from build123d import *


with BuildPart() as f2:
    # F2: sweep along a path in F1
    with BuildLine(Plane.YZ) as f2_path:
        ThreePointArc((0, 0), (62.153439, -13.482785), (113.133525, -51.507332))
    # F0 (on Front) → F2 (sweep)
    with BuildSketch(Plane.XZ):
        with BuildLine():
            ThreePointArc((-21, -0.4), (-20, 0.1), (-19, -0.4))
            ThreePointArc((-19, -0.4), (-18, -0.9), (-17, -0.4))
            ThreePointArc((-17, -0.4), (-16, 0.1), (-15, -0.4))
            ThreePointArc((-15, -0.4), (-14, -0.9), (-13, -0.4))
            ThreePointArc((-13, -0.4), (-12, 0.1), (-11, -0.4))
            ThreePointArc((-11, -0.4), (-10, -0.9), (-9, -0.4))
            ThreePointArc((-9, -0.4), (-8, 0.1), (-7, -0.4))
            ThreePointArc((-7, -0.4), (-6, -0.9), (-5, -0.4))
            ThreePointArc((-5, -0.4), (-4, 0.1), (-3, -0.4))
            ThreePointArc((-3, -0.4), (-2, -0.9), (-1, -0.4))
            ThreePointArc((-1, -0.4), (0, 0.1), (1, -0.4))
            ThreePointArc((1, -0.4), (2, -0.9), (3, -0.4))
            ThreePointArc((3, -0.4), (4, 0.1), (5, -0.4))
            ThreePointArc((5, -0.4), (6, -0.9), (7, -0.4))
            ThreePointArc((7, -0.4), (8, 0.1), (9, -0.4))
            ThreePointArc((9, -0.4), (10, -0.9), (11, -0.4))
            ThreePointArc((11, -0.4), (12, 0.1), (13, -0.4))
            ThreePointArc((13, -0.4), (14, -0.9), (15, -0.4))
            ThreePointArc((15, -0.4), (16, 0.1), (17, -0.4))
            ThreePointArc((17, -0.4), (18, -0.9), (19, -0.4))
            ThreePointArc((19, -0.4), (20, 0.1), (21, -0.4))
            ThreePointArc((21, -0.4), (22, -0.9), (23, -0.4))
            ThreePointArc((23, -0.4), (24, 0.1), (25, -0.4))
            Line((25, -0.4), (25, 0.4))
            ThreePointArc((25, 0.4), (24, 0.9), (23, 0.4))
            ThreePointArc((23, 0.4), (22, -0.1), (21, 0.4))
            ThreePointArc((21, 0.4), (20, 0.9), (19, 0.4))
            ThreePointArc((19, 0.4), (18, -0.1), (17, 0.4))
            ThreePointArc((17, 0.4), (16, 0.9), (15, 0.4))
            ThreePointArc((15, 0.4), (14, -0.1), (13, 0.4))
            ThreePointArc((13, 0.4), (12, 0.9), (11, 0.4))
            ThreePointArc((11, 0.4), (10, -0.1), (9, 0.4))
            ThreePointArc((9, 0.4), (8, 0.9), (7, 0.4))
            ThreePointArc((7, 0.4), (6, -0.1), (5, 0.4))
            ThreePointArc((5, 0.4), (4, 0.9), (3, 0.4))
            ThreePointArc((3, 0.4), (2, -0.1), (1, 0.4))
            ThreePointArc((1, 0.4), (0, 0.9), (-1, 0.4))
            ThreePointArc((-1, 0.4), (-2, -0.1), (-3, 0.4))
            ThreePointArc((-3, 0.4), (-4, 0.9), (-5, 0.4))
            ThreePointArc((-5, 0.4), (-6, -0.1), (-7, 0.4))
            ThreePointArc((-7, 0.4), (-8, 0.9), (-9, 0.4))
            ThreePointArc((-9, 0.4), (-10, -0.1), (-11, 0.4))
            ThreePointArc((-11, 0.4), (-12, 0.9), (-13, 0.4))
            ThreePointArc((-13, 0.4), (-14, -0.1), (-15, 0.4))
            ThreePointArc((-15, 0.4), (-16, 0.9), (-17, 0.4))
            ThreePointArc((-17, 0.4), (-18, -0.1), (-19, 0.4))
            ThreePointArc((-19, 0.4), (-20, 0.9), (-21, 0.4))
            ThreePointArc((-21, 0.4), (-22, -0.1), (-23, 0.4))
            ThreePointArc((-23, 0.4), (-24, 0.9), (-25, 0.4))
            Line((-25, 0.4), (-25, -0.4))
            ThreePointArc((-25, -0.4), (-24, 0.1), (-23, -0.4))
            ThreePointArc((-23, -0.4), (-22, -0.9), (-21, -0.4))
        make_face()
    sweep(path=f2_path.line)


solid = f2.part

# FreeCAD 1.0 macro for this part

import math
import FreeCAD as App
import Part
import Sketcher

V = App.Vector

doc = App.newDocument("Part")
params = doc.addObject("Spreadsheet::Sheet", "Params")
for row, (alias, value) in enumerate([
    ("sketch1_radius", "1.25 mm"),
    ("sketch1_height", "0.8 mm"),
], start=1):
    params.set(f"A{row}", alias)
    params.set(f"B{row}", "=" + value)
    params.setAlias(f"B{row}", alias)

body = doc.addObject("PartDesign::Body", "Body")

sketch1 = body.newObject("Sketcher::SketchObject", "Sketch")
sketch1.AttachmentSupport = (doc.getObject("XZ_Plane"), [""])
sketch1.MapMode = "FlatFace"
sketch1.addGeometry(Part.ArcOfCircle(Part.Circle(V(-20, -1.1, 0), V(0, 0, 1), 1.2), math.radians(37), math.radians(143)), False)
sketch1.addGeometry(Part.ArcOfCircle(Part.Circle(V(-18, 0.3, 0), V(0, 0, 1), 1.2), math.radians(-143), math.radians(-37)), False)
sketch1.addGeometry(Part.ArcOfCircle(Part.Circle(V(-16, -1.1, 0), V(0, 0, 1), 1.2), math.radians(37), math.radians(143)), False)
sketch1.addGeometry(Part.ArcOfCircle(Part.Circle(V(-14, 0.3, 0), V(0, 0, 1), 1.2), math.radians(-143), math.radians(-37)), False)
sketch1.addGeometry(Part.ArcOfCircle(Part.Circle(V(-12, -1.1, 0), V(0, 0, 1), 1.2), math.radians(37), math.radians(143)), False)
sketch1.addGeometry(Part.ArcOfCircle(Part.Circle(V(-10, 0.3, 0), V(0, 0, 1), 1.2), math.radians(-143), math.radians(-37)), False)
sketch1.addGeometry(Part.ArcOfCircle(Part.Circle(V(-8, -1.1, 0), V(0, 0, 1), 1.2), math.radians(37), math.radians(143)), False)
sketch1.addGeometry(Part.ArcOfCircle(Part.Circle(V(-6, 0.3, 0), V(0, 0, 1), 1.2), math.radians(-143), math.radians(-37)), False)
sketch1.addGeometry(Part.ArcOfCircle(Part.Circle(V(-4, -1.1, 0), V(0, 0, 1), 1.2), math.radians(37), math.radians(143)), False)
sketch1.addGeometry(Part.ArcOfCircle(Part.Circle(V(-2, 0.3, 0), V(0, 0, 1), 1.2), math.radians(-143), math.radians(-37)), False)
sketch1.addGeometry(Part.ArcOfCircle(Part.Circle(V(0, -1.1, 0), V(0, 0, 1), 1.2), math.radians(37), math.radians(143)), False)
sketch1.addGeometry(Part.ArcOfCircle(Part.Circle(V(2, 0.3, 0), V(0, 0, 1), 1.2), math.radians(-143), math.radians(-37)), False)
sketch1.addGeometry(Part.ArcOfCircle(Part.Circle(V(4, -1.1, 0), V(0, 0, 1), 1.2), math.radians(37), math.radians(143)), False)
sketch1.addGeometry(Part.ArcOfCircle(Part.Circle(V(6, 0.3, 0), V(0, 0, 1), 1.2), math.radians(-143), math.radians(-37)), False)
sketch1.addGeometry(Part.ArcOfCircle(Part.Circle(V(8, -1.1, 0), V(0, 0, 1), 1.2), math.radians(37), math.radians(143)), False)
sketch1.addGeometry(Part.ArcOfCircle(Part.Circle(V(10, 0.3, 0), V(0, 0, 1), 1.2), math.radians(-143), math.radians(-37)), False)
sketch1.addGeometry(Part.ArcOfCircle(Part.Circle(V(12, -1.1, 0), V(0, 0, 1), 1.2), math.radians(37), math.radians(143)), False)
sketch1.addGeometry(Part.ArcOfCircle(Part.Circle(V(14, 0.3, 0), V(0, 0, 1), 1.2), math.radians(-143), math.radians(-37)), False)
sketch1.addGeometry(Part.ArcOfCircle(Part.Circle(V(16, -1.1, 0), V(0, 0, 1), 1.2), math.radians(37), math.radians(143)), False)
sketch1.addGeometry(Part.ArcOfCircle(Part.Circle(V(18, 0.3, 0), V(0, 0, 1), 1.2), math.radians(-143), math.radians(-37)), False)
sketch1.addGeometry(Part.ArcOfCircle(Part.Circle(V(20, -1.1, 0), V(0, 0, 1), 1.2), math.radians(37), math.radians(143)), False)
sketch1.addGeometry(Part.ArcOfCircle(Part.Circle(V(22, 0.3, 0), V(0, 0, 1), 1.2), math.radians(-143), math.radians(-37)), False)
sketch1.addGeometry(Part.ArcOfCircle(Part.Circle(V(24, -1.1, 0), V(0, 0, 1), 1.2), math.radians(37), math.radians(143)), False)
sketch1.addGeometry(Part.LineSegment(V(25, -0.4, 0), V(25, 0.4, 0)), False)
sketch1.addGeometry(Part.ArcOfCircle(Part.Circle(V(24, -0.3, 0), V(0, 0, 1), 1.2), math.radians(37), math.radians(143)), False)
sketch1.addGeometry(Part.ArcOfCircle(Part.Circle(V(22, 1.1, 0), V(0, 0, 1), 1.2), math.radians(-143), math.radians(-37)), False)
sketch1.addGeometry(Part.ArcOfCircle(Part.Circle(V(20, -0.3, 0), V(0, 0, 1), 1.2), math.radians(37), math.radians(143)), False)
sketch1.addGeometry(Part.ArcOfCircle(Part.Circle(V(18, 1.1, 0), V(0, 0, 1), 1.2), math.radians(-143), math.radians(-37)), False)
sketch1.addGeometry(Part.ArcOfCircle(Part.Circle(V(16, -0.3, 0), V(0, 0, 1), 1.2), math.radians(37), math.radians(143)), False)
sketch1.addGeometry(Part.ArcOfCircle(Part.Circle(V(14, 1.1, 0), V(0, 0, 1), 1.2), math.radians(-143), math.radians(-37)), False)
sketch1.addGeometry(Part.ArcOfCircle(Part.Circle(V(12, -0.3, 0), V(0, 0, 1), 1.2), math.radians(37), math.radians(143)), False)
sketch1.addGeometry(Part.ArcOfCircle(Part.Circle(V(10, 1.1, 0), V(0, 0, 1), 1.2), math.radians(-143), math.radians(-37)), False)
sketch1.addGeometry(Part.ArcOfCircle(Part.Circle(V(8, -0.3, 0), V(0, 0, 1), 1.2), math.radians(37), math.radians(143)), False)
sketch1.addGeometry(Part.ArcOfCircle(Part.Circle(V(6, 1.1, 0), V(0, 0, 1), 1.2), math.radians(-143), math.radians(-37)), False)
sketch1.addGeometry(Part.ArcOfCircle(Part.Circle(V(4, -0.3, 0), V(0, 0, 1), 1.2), math.radians(37), math.radians(143)), False)
sketch1.addGeometry(Part.ArcOfCircle(Part.Circle(V(2, 1.1, 0), V(0, 0, 1), 1.2), math.radians(-143), math.radians(-37)), False)
sketch1.addGeometry(Part.ArcOfCircle(Part.Circle(V(0, -0.3, 0), V(0, 0, 1), 1.2), math.radians(37), math.radians(143)), False)
sketch1.addGeometry(Part.ArcOfCircle(Part.Circle(V(-2, 1.1, 0), V(0, 0, 1), 1.2), math.radians(-143), math.radians(-37)), False)
sketch1.addGeometry(Part.ArcOfCircle(Part.Circle(V(-4, -0.3, 0), V(0, 0, 1), 1.2), math.radians(37), math.radians(143)), False)
sketch1.addGeometry(Part.ArcOfCircle(Part.Circle(V(-6, 1.1, 0), V(0, 0, 1), 1.2), math.radians(-143), math.radians(-37)), False)
sketch1.addGeometry(Part.ArcOfCircle(Part.Circle(V(-8, -0.3, 0), V(0, 0, 1), 1.2), math.radians(37), math.radians(143)), False)
sketch1.addGeometry(Part.ArcOfCircle(Part.Circle(V(-10, 1.1, 0), V(0, 0, 1), 1.2), math.radians(-143), math.radians(-37)), False)
sketch1.addGeometry(Part.ArcOfCircle(Part.Circle(V(-12, -0.3, 0), V(0, 0, 1), 1.2), math.radians(37), math.radians(143)), False)
sketch1.addGeometry(Part.ArcOfCircle(Part.Circle(V(-14, 1.1, 0), V(0, 0, 1), 1.2), math.radians(-143), math.radians(-37)), False)
sketch1.addGeometry(Part.ArcOfCircle(Part.Circle(V(-16, -0.3, 0), V(0, 0, 1), 1.2), math.radians(37), math.radians(143)), False)
sketch1.addGeometry(Part.ArcOfCircle(Part.Circle(V(-18, 1.1, 0), V(0, 0, 1), 1.2), math.radians(-143), math.radians(-37)), False)
sketch1.addGeometry(Part.ArcOfCircle(Part.Circle(V(-20, -0.3, 0), V(0, 0, 1), 1.2), math.radians(37), math.radians(143)), False)
sketch1.addGeometry(Part.ArcOfCircle(Part.Circle(V(-22, 1.1, 0), V(0, 0, 1), 1.2), math.radians(-143), math.radians(-37)), False)
sketch1.addGeometry(Part.ArcOfCircle(Part.Circle(V(-24, -0.3, 0), V(0, 0, 1), 1.2), math.radians(37), math.radians(143)), False)
sketch1.addGeometry(Part.LineSegment(V(-25, 0.4, 0), V(-25, -0.4, 0)), False)
sketch1.addGeometry(Part.ArcOfCircle(Part.Circle(V(-24, -1.1, 0), V(0, 0, 1), 1.2), math.radians(37), math.radians(143)), False)
sketch1.addGeometry(Part.ArcOfCircle(Part.Circle(V(-22, 0.3, 0), V(0, 0, 1), 1.2), math.radians(-143), math.radians(-37)), False)
sketch1.addConstraint(Sketcher.Constraint("Tangent", 0, 1, 1, 1))
sketch1.addConstraint(Sketcher.Constraint("Tangent", 1, 2, 2, 2))
sketch1.addConstraint(Sketcher.Constraint("Tangent", 2, 1, 3, 1))
sketch1.addConstraint(Sketcher.Constraint("Tangent", 3, 2, 4, 2))
sketch1.addConstraint(Sketcher.Constraint("Tangent", 4, 1, 5, 1))
sketch1.addConstraint(Sketcher.Constraint("Tangent", 5, 2, 6, 2))
sketch1.addConstraint(Sketcher.Constraint("Tangent", 6, 1, 7, 1))
sketch1.addConstraint(Sketcher.Constraint("Tangent", 7, 2, 8, 2))
sketch1.addConstraint(Sketcher.Constraint("Tangent", 8, 1, 9, 1))
sketch1.addConstraint(Sketcher.Constraint("Tangent", 9, 2, 10, 2))
sketch1.addConstraint(Sketcher.Constraint("Tangent", 10, 1, 11, 1))
sketch1.addConstraint(Sketcher.Constraint("Tangent", 11, 2, 12, 2))
sketch1.addConstraint(Sketcher.Constraint("Tangent", 12, 1, 13, 1))
sketch1.addConstraint(Sketcher.Constraint("Tangent", 13, 2, 14, 2))
sketch1.addConstraint(Sketcher.Constraint("Tangent", 14, 1, 15, 1))
sketch1.addConstraint(Sketcher.Constraint("Tangent", 15, 2, 16, 2))
sketch1.addConstraint(Sketcher.Constraint("Tangent", 16, 1, 17, 1))
sketch1.addConstraint(Sketcher.Constraint("Tangent", 17, 2, 18, 2))
sketch1.addConstraint(Sketcher.Constraint("Tangent", 18, 1, 19, 1))
sketch1.addConstraint(Sketcher.Constraint("Tangent", 19, 2, 20, 2))
sketch1.addConstraint(Sketcher.Constraint("Tangent", 20, 1, 21, 1))
sketch1.addConstraint(Sketcher.Constraint("Tangent", 21, 2, 22, 2))
sketch1.addConstraint(Sketcher.Constraint("Coincident", 22, 1, 23, 1))
sketch1.addConstraint(Sketcher.Constraint("Coincident", 23, 2, 24, 1))
sketch1.addConstraint(Sketcher.Constraint("Tangent", 24, 2, 25, 2))
sketch1.addConstraint(Sketcher.Constraint("Tangent", 25, 1, 26, 1))
sketch1.addConstraint(Sketcher.Constraint("Tangent", 26, 2, 27, 2))
sketch1.addConstraint(Sketcher.Constraint("Tangent", 27, 1, 28, 1))
sketch1.addConstraint(Sketcher.Constraint("Tangent", 28, 2, 29, 2))
sketch1.addConstraint(Sketcher.Constraint("Tangent", 29, 1, 30, 1))
sketch1.addConstraint(Sketcher.Constraint("Tangent", 30, 2, 31, 2))
sketch1.addConstraint(Sketcher.Constraint("Tangent", 31, 1, 32, 1))
sketch1.addConstraint(Sketcher.Constraint("Tangent", 32, 2, 33, 2))
sketch1.addConstraint(Sketcher.Constraint("Tangent", 33, 1, 34, 1))
sketch1.addConstraint(Sketcher.Constraint("Tangent", 34, 2, 35, 2))
sketch1.addConstraint(Sketcher.Constraint("Tangent", 35, 1, 36, 1))
sketch1.addConstraint(Sketcher.Constraint("Tangent", 36, 2, 37, 2))
sketch1.addConstraint(Sketcher.Constraint("Tangent", 37, 1, 38, 1))
sketch1.addConstraint(Sketcher.Constraint("Tangent", 38, 2, 39, 2))
sketch1.addConstraint(Sketcher.Constraint("Tangent", 39, 1, 40, 1))
sketch1.addConstraint(Sketcher.Constraint("Tangent", 40, 2, 41, 2))
sketch1.addConstraint(Sketcher.Constraint("Tangent", 41, 1, 42, 1))
sketch1.addConstraint(Sketcher.Constraint("Tangent", 42, 2, 43, 2))
sketch1.addConstraint(Sketcher.Constraint("Tangent", 43, 1, 44, 1))
sketch1.addConstraint(Sketcher.Constraint("Tangent", 44, 2, 45, 2))
sketch1.addConstraint(Sketcher.Constraint("Tangent", 45, 1, 46, 1))
sketch1.addConstraint(Sketcher.Constraint("Tangent", 46, 2, 47, 2))
sketch1.addConstraint(Sketcher.Constraint("Tangent", 47, 1, 48, 1))
sketch1.addConstraint(Sketcher.Constraint("Coincident", 48, 2, 49, 1))
sketch1.addConstraint(Sketcher.Constraint("Coincident", 49, 2, 50, 2))
sketch1.addConstraint(Sketcher.Constraint("Tangent", 50, 1, 51, 1))
sketch1.addConstraint(Sketcher.Constraint("Tangent", 51, 2, 0, 2))
sketch1.addConstraint(Sketcher.Constraint("Vertical", 23))
sketch1.addConstraint(Sketcher.Constraint("Vertical", 49))
sketch1.addConstraint(Sketcher.Constraint("Equal", 0, 1))
sketch1.addConstraint(Sketcher.Constraint("Equal", 1, 2))
sketch1.addConstraint(Sketcher.Constraint("Equal", 2, 3))
sketch1.addConstraint(Sketcher.Constraint("Equal", 3, 4))
sketch1.addConstraint(Sketcher.Constraint("Equal", 4, 5))
sketch1.addConstraint(Sketcher.Constraint("Equal", 5, 6))
sketch1.addConstraint(Sketcher.Constraint("Equal", 6, 7))
sketch1.addConstraint(Sketcher.Constraint("Equal", 7, 8))
sketch1.addConstraint(Sketcher.Constraint("Equal", 8, 9))
sketch1.addConstraint(Sketcher.Constraint("Equal", 9, 10))
sketch1.addConstraint(Sketcher.Constraint("Equal", 10, 11))
sketch1.addConstraint(Sketcher.Constraint("Equal", 11, 12))
sketch1.addConstraint(Sketcher.Constraint("Equal", 12, 13))
sketch1.addConstraint(Sketcher.Constraint("Equal", 13, 14))
sketch1.addConstraint(Sketcher.Constraint("Equal", 14, 15))
sketch1.addConstraint(Sketcher.Constraint("Equal", 15, 16))
sketch1.addConstraint(Sketcher.Constraint("Equal", 16, 17))
sketch1.addConstraint(Sketcher.Constraint("Equal", 17, 18))
sketch1.addConstraint(Sketcher.Constraint("Equal", 18, 19))
sketch1.addConstraint(Sketcher.Constraint("Equal", 19, 20))
sketch1.addConstraint(Sketcher.Constraint("Equal", 20, 21))
sketch1.addConstraint(Sketcher.Constraint("Equal", 21, 22))
sketch1.addConstraint(Sketcher.Constraint("Equal", 22, 24))
sketch1.addConstraint(Sketcher.Constraint("Equal", 24, 25))
sketch1.addConstraint(Sketcher.Constraint("Equal", 25, 26))
sketch1.addConstraint(Sketcher.Constraint("Equal", 26, 27))
sketch1.addConstraint(Sketcher.Constraint("Equal", 27, 28))
sketch1.addConstraint(Sketcher.Constraint("Equal", 28, 29))
sketch1.addConstraint(Sketcher.Constraint("Equal", 29, 30))
sketch1.addConstraint(Sketcher.Constraint("Equal", 30, 31))
sketch1.addConstraint(Sketcher.Constraint("Equal", 31, 32))
sketch1.addConstraint(Sketcher.Constraint("Equal", 32, 33))
sketch1.addConstraint(Sketcher.Constraint("Equal", 33, 34))
sketch1.addConstraint(Sketcher.Constraint("Equal", 34, 35))
sketch1.addConstraint(Sketcher.Constraint("Equal", 35, 36))
sketch1.addConstraint(Sketcher.Constraint("Equal", 36, 37))
sketch1.addConstraint(Sketcher.Constraint("Equal", 37, 38))
sketch1.addConstraint(Sketcher.Constraint("Equal", 38, 39))
sketch1.addConstraint(Sketcher.Constraint("Equal", 39, 40))
sketch1.addConstraint(Sketcher.Constraint("Equal", 40, 41))
sketch1.addConstraint(Sketcher.Constraint("Equal", 41, 42))
sketch1.addConstraint(Sketcher.Constraint("Equal", 42, 43))
sketch1.addConstraint(Sketcher.Constraint("Equal", 43, 44))
sketch1.addConstraint(Sketcher.Constraint("Equal", 44, 45))
sketch1.addConstraint(Sketcher.Constraint("Equal", 45, 46))
sketch1.addConstraint(Sketcher.Constraint("Equal", 46, 47))
sketch1.addConstraint(Sketcher.Constraint("Equal", 47, 48))
sketch1.addConstraint(Sketcher.Constraint("Equal", 48, 50))
sketch1.addConstraint(Sketcher.Constraint("Equal", 50, 51))
sketch1.addConstraint(Sketcher.Constraint("Symmetric", 0, 1, 26, 2, -1, 1))
sketch1.addConstraint(Sketcher.Constraint("Symmetric", 1, 2, 27, 1, -1, 1))
sketch1.addConstraint(Sketcher.Constraint("Symmetric", 2, 1, 28, 2, -1, 1))
sketch1.addConstraint(Sketcher.Constraint("Symmetric", 3, 2, 29, 1, -1, 1))
sketch1.addConstraint(Sketcher.Constraint("Symmetric", 4, 1, 30, 2, -1, 1))
sketch1.addConstraint(Sketcher.Constraint("Symmetric", 5, 2, 31, 1, -1, 1))
sketch1.addConstraint(Sketcher.Constraint("Symmetric", 6, 1, 32, 2, -1, 1))
sketch1.addConstraint(Sketcher.Constraint("Symmetric", 7, 2, 33, 1, -1, 1))
sketch1.addConstraint(Sketcher.Constraint("Symmetric", 8, 1, 34, 2, -1, 1))
sketch1.addConstraint(Sketcher.Constraint("Symmetric", 9, 2, 35, 1, -1, 1))
sketch1.addConstraint(Sketcher.Constraint("Symmetric", 10, 1, 36, 2, -1, 1))
sketch1.addConstraint(Sketcher.Constraint("Symmetric", 11, 2, 37, 1, -1, 1))
sketch1.addConstraint(Sketcher.Constraint("Symmetric", 12, 1, 38, 2, -1, 1))
sketch1.addConstraint(Sketcher.Constraint("Symmetric", 13, 2, 39, 1, -1, 1))
sketch1.addConstraint(Sketcher.Constraint("Symmetric", 14, 1, 40, 2, -1, 1))
sketch1.addConstraint(Sketcher.Constraint("Symmetric", 15, 2, 41, 1, -1, 1))
sketch1.addConstraint(Sketcher.Constraint("Symmetric", 16, 1, 42, 2, -1, 1))
sketch1.addConstraint(Sketcher.Constraint("Symmetric", 17, 2, 43, 1, -1, 1))
sketch1.addConstraint(Sketcher.Constraint("Symmetric", 18, 1, 44, 2, -1, 1))
sketch1.addConstraint(Sketcher.Constraint("Symmetric", 19, 2, 45, 1, -1, 1))
sketch1.addConstraint(Sketcher.Constraint("Symmetric", 20, 1, 46, 2, -1, 1))
sketch1.addConstraint(Sketcher.Constraint("Symmetric", 21, 2, 47, 1, -1, 1))
sketch1.addConstraint(Sketcher.Constraint("Symmetric", 22, 1, 48, 2, -1, 1))
sketch1.addConstraint(Sketcher.Constraint("Symmetric", 24, 2, 50, 1, -1, 1))
sketch1.addConstraint(Sketcher.Constraint("Symmetric", 25, 1, 51, 2, -1, 1))
sketch1.addConstraint(Sketcher.Constraint("Symmetric", 9, 3, 11, 3, -2))
sketch1.addConstraint(Sketcher.Constraint("Radius", 0, 1.25))
sketch1.addConstraint(Sketcher.Constraint("DistanceY", 23, 1, 23, 2, 0.8))
sketch1.addConstraint(Sketcher.Constraint("DistanceX", 0, 3, -1, 1, 20.0))
sketch1.setExpression("Constraints[129]", "Params.sketch1_radius")
sketch1.setExpression("Constraints[130]", "Params.sketch1_height")

sketch2 = body.newObject("Sketcher::SketchObject", "Sketch001")
sketch2.AttachmentSupport = (doc.getObject("YZ_Plane"), [""])
sketch2.MapMode = "FlatFace"
sketch2.addGeometry(Part.ArcOfCircle(Part.Circle(V(0, -150, 0), V(0, 0, 1), 150), math.radians(41), math.radians(90)), False)
sketch2.addConstraint(Sketcher.Constraint("Coincident", 0, 2, -1, 1))
sketch2.addConstraint(Sketcher.Constraint("PointOnObject", 0, 3, -2))
sketch2.addConstraint(Sketcher.Constraint("Radius", 0, 150.000003))
sketch2.addConstraint(Sketcher.Constraint("DistanceY", 0, 1, -1, 1, 51.507332))
doc.recompute()

additivepipe = body.newObject("PartDesign::AdditivePipe", "AdditivePipe")
additivepipe.Profile = sketch1
additivepipe.Spine = (sketch2, ["Edge1"])

doc.recompute()
